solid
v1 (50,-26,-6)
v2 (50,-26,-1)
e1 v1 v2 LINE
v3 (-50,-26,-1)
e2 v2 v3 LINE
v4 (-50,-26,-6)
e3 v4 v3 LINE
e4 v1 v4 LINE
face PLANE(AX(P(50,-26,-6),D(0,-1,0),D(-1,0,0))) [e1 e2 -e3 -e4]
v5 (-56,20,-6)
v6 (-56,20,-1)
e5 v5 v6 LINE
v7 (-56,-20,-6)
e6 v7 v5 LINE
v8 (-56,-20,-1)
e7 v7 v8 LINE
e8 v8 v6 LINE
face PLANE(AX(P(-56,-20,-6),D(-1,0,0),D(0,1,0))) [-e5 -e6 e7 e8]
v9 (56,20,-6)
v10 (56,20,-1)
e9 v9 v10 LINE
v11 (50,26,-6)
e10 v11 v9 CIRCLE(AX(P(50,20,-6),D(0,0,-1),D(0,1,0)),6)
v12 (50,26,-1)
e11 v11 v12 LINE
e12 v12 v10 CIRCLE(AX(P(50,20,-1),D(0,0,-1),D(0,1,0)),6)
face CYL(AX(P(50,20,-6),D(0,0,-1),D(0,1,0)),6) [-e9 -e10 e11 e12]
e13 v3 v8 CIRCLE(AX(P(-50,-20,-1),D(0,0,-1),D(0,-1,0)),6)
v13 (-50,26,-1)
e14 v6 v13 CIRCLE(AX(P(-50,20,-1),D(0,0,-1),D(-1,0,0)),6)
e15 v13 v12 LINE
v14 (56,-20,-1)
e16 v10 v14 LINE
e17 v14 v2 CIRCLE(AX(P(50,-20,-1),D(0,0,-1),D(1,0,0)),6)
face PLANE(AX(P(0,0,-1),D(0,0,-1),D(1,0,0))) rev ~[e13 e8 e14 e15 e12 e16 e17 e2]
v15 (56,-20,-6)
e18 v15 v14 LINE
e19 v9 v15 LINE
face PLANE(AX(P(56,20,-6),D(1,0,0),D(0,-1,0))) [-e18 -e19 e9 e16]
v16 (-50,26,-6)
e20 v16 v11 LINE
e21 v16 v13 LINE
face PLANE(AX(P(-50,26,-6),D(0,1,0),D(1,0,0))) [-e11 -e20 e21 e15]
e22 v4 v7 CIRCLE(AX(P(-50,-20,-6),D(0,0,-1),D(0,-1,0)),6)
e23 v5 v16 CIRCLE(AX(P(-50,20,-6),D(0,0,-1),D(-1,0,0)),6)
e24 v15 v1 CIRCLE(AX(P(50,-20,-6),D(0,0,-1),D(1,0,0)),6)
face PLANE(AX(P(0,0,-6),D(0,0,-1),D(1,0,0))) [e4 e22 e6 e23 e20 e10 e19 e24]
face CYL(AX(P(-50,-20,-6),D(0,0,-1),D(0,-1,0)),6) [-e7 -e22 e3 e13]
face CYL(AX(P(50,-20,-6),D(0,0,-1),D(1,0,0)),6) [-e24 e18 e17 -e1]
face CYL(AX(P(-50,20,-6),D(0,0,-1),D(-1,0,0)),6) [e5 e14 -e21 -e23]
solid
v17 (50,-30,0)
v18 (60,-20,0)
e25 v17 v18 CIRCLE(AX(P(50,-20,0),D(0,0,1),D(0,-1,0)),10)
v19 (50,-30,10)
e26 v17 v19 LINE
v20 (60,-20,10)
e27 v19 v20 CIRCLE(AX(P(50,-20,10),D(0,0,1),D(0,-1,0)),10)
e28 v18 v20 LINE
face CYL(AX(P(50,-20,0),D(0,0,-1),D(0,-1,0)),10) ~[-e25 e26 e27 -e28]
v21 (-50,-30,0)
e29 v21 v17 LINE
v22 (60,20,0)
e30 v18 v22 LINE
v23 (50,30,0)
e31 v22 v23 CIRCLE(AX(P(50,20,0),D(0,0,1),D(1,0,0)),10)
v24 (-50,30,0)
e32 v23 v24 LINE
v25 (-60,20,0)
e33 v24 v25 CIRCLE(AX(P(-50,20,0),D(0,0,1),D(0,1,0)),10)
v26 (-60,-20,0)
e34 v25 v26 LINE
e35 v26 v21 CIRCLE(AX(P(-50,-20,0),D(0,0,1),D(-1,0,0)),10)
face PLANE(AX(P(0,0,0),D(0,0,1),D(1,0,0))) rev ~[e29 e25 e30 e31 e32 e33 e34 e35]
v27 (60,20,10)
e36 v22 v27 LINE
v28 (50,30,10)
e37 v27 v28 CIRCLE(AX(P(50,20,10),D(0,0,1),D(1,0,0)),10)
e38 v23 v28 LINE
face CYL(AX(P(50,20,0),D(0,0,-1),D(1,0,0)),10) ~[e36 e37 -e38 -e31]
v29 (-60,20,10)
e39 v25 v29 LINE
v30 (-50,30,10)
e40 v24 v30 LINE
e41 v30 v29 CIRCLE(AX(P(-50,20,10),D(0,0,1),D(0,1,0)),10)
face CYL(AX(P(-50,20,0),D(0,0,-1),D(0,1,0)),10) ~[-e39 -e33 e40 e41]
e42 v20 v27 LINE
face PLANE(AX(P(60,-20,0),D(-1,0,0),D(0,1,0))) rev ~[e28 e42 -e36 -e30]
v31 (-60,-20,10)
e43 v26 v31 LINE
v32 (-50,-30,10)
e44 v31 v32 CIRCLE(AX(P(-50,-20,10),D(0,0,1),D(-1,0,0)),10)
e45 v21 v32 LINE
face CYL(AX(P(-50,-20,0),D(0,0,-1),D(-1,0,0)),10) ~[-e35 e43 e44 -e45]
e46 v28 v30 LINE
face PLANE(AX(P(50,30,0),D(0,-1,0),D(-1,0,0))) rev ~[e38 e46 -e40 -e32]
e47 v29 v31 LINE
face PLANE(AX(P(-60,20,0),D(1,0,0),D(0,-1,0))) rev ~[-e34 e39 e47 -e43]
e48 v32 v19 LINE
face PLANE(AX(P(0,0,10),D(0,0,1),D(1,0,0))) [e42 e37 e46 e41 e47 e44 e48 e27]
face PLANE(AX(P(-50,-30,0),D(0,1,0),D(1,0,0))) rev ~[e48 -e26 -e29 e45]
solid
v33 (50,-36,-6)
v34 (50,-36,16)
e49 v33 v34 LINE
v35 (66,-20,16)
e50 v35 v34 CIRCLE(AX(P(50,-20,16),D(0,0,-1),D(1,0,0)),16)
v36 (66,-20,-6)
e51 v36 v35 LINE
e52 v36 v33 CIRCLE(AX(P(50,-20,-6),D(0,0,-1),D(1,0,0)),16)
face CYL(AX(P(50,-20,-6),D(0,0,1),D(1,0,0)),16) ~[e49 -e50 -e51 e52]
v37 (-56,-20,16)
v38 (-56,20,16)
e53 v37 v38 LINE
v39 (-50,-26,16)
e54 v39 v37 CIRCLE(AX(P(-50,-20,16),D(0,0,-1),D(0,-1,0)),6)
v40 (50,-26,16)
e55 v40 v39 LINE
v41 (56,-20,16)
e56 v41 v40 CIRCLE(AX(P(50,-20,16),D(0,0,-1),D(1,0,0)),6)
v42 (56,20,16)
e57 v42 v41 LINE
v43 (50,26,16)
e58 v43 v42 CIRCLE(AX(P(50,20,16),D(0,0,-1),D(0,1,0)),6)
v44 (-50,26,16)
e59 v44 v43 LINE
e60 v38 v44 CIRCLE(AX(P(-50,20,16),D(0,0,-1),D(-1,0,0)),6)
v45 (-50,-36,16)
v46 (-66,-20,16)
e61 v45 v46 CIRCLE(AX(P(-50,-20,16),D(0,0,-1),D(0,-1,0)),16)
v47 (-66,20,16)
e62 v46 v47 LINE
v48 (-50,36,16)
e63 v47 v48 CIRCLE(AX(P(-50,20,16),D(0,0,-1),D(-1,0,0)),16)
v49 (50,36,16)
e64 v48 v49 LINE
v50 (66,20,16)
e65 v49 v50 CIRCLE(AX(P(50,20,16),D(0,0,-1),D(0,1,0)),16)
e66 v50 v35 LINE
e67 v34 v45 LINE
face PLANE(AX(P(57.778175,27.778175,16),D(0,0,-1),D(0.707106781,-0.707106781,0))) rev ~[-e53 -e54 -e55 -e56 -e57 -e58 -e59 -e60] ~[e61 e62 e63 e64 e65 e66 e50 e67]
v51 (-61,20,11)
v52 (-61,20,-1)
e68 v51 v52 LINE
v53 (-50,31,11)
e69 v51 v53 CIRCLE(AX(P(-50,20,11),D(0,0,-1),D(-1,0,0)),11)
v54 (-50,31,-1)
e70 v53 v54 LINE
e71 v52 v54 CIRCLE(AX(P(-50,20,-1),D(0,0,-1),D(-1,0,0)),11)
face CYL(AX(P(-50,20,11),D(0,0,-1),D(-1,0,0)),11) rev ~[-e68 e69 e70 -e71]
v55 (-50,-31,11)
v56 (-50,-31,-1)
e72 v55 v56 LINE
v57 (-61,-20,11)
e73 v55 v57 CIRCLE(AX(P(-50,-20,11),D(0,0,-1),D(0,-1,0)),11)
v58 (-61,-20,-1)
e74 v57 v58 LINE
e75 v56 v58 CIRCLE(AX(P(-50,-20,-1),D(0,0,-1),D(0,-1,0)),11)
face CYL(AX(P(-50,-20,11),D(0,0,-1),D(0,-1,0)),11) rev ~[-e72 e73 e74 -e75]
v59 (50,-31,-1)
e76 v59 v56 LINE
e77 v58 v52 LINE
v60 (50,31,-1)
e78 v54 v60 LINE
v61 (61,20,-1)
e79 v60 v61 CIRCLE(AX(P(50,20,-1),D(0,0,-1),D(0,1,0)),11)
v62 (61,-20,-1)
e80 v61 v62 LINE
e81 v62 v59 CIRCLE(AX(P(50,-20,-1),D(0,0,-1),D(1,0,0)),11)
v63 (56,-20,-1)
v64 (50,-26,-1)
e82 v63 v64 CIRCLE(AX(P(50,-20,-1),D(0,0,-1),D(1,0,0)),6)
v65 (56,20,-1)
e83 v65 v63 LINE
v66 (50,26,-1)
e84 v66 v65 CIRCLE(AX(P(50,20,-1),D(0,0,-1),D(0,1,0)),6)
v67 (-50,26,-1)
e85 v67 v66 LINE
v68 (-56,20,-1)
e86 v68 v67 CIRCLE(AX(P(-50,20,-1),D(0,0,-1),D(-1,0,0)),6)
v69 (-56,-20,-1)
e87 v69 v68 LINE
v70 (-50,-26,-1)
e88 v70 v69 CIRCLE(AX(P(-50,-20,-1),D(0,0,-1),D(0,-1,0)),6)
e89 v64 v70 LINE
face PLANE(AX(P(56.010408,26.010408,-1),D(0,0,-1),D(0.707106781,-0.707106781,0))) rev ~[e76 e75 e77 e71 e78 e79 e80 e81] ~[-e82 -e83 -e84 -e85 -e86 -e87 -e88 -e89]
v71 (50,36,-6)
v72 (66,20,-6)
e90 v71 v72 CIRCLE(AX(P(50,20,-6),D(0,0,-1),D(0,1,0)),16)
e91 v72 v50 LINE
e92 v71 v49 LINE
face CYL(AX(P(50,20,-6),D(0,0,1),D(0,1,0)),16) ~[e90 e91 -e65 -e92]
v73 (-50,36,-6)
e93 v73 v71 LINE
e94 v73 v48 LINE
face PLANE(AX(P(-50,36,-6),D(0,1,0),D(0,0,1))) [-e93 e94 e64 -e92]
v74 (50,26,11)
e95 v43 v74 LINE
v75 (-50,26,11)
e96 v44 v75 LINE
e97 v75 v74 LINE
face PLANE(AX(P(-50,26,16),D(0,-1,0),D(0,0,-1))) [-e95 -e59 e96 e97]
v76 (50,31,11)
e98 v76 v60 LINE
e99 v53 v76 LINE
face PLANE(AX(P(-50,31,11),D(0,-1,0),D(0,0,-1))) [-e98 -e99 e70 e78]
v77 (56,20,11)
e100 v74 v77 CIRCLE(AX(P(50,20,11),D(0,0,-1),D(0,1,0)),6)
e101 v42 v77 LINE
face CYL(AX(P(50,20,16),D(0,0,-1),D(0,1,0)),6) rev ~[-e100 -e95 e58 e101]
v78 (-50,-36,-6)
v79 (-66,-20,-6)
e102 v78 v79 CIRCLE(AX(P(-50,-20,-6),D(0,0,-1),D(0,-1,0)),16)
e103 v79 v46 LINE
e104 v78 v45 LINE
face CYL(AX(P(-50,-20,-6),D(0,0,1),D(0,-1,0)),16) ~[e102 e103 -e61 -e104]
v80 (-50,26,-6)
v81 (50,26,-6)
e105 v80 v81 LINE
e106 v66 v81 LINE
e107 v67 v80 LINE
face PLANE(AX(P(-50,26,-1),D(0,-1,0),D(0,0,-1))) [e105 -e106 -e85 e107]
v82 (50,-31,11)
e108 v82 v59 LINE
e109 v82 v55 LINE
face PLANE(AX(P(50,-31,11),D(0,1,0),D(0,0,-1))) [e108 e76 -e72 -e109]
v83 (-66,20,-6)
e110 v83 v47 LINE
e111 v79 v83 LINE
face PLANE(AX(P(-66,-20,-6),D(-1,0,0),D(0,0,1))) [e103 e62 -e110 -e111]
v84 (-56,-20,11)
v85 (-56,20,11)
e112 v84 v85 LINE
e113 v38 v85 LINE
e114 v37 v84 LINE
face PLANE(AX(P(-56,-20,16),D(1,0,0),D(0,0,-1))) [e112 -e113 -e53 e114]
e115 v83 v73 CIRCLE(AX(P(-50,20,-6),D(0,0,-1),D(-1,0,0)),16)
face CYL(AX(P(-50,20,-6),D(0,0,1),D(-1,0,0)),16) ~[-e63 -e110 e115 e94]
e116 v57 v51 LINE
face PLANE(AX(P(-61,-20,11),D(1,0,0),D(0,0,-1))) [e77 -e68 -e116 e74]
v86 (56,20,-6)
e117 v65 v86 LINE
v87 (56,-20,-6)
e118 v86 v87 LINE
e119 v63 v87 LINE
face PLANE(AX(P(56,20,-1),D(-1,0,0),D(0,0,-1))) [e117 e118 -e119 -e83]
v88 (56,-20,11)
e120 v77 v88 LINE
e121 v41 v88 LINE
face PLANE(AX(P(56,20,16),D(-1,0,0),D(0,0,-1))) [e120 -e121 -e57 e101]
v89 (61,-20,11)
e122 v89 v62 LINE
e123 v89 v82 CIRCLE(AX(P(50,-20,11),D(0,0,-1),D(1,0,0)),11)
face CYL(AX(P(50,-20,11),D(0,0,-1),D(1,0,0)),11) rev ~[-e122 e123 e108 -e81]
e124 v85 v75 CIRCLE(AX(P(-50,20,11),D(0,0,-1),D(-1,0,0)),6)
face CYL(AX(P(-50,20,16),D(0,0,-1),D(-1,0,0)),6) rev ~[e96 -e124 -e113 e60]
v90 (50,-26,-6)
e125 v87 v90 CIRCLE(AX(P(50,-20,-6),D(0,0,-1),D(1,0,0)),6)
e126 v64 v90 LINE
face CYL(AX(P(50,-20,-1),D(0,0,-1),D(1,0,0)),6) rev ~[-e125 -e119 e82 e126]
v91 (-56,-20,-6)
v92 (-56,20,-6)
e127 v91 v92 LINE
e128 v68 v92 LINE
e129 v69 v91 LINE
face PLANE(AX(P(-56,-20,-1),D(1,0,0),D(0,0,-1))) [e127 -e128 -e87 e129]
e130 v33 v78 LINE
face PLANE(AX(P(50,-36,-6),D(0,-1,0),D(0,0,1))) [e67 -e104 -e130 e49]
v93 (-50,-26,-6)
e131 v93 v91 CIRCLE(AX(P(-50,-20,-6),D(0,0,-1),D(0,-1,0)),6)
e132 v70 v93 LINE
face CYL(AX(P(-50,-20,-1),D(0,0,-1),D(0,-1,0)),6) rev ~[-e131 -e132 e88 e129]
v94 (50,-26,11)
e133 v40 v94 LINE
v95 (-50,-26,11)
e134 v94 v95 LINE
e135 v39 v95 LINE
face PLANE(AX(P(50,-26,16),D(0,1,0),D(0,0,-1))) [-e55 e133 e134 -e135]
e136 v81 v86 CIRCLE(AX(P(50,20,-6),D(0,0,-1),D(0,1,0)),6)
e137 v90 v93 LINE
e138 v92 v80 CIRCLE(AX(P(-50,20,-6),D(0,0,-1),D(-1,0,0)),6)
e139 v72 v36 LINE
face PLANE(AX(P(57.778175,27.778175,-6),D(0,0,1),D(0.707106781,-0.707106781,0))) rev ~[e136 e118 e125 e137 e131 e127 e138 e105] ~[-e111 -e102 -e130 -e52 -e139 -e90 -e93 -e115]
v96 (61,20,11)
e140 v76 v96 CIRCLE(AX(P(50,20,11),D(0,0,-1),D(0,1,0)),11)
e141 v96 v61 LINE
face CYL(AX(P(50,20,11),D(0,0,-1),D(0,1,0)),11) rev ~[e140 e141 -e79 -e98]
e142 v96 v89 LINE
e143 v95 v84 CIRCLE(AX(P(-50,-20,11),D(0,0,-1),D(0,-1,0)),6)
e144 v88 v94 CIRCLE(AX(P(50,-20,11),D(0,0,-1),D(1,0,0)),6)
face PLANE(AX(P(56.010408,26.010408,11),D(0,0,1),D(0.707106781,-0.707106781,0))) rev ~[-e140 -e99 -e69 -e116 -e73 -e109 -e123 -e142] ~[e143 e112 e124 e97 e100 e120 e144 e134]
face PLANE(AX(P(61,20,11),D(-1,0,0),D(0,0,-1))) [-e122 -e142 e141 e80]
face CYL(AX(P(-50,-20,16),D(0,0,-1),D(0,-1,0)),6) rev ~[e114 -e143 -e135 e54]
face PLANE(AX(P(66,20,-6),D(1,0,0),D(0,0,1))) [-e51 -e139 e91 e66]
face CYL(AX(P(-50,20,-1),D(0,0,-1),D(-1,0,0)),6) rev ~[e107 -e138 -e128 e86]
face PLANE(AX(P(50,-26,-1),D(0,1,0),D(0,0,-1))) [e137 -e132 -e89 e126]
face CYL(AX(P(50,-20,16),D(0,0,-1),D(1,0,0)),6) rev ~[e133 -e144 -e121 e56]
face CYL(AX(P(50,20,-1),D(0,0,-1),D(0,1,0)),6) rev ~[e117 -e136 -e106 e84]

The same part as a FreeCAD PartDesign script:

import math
import FreeCAD as App
import Part
import Sketcher

doc = App.newDocument("Part")
params = doc.addObject("Spreadsheet::Sheet", "Params")
for row, (alias, value) in enumerate([
    ("sketch1_radius", "10 mm"),
    ("sketch1_width", "100 mm"),
    ("sketch1_height", "40 mm"),
    ("pad1_length", "10 mm"),
    ("sketch2_width", "5 mm"),
    ("sketch2_width2", "10 mm"),
    ("sketch2_height", "12 mm"),
    ("sketch3_radius", "11 mm"),
    ("sketch3_width", "100 mm"),
    ("sketch3_height", "40 mm"),
    ("sketch4_radius", "6 mm"),
    ("sketch4_width", "100 mm"),
    ("sketch4_height", "40 mm"),
    ("pad2_length", "5 mm"),
], start=1):
    params.set(f"A{row}", alias)
    params.set(f"B{row}", "=" + value)
    params.setAlias(f"B{row}", alias)

body = doc.addObject("PartDesign::Body", "Body")

# Sketch on XY plane
sketch1 = doc.addObject("Sketcher::SketchObject", "Sketch")
body.addObject(sketch1)
sketch1.AttachmentSupport = (doc.XY_Plane, [""])
sketch1.MapMode = "FlatFace"
sketch1.addGeometry(Part.LineSegment(App.Vector(50, 30, 0), App.Vector(-50, 30, 0)), False)
sketch1.addGeometry(Part.ArcOfCircle(Part.Circle(App.Vector(-50, 20, 0), App.Vector(0, 0, 1), 10), math.radians(90), math.radians(180)), False)
sketch1.addGeometry(Part.LineSegment(App.Vector(-60, 20, 0), App.Vector(-60, -20, 0)), False)
sketch1.addGeometry(Part.ArcOfCircle(Part.Circle(App.Vector(-50, -20, 0), App.Vector(0, 0, 1), 10), math.radians(180), math.radians(270)), False)
sketch1.addGeometry(Part.LineSegment(App.Vector(-50, -30, 0), App.Vector(50, -30, 0)), False)
sketch1.addGeometry(Part.ArcOfCircle(Part.Circle(App.Vector(50, -20, 0), App.Vector(0, 0, 1), 10), math.radians(-90), math.radians(0)), False)
sketch1.addGeometry(Part.LineSegment(App.Vector(60, -20, 0), App.Vector(60, 20, 0)), False)
sketch1.addGeometry(Part.ArcOfCircle(Part.Circle(App.Vector(50, 20, 0), App.Vector(0, 0, 1), 10), math.radians(0), math.radians(90)), False)
sketch1.addConstraint(Sketcher.Constraint("Tangent", 0, 2, 1, 1))
sketch1.addConstraint(Sketcher.Constraint("Tangent", 1, 2, 2, 1))
sketch1.addConstraint(Sketcher.Constraint("Tangent", 2, 2, 3, 1))
sketch1.addConstraint(Sketcher.Constraint("Tangent", 3, 2, 4, 1))
sketch1.addConstraint(Sketcher.Constraint("Tangent", 4, 2, 5, 1))
sketch1.addConstraint(Sketcher.Constraint("Tangent", 5, 2, 6, 1))
sketch1.addConstraint(Sketcher.Constraint("Tangent", 6, 2, 7, 1))
sketch1.addConstraint(Sketcher.Constraint("Tangent", 7, 2, 0, 1))
sketch1.addConstraint(Sketcher.Constraint("Horizontal", 0))
sketch1.addConstraint(Sketcher.Constraint("Vertical", 2))
sketch1.addConstraint(Sketcher.Constraint("Horizontal", 4))
sketch1.addConstraint(Sketcher.Constraint("Vertical", 6))
sketch1.addConstraint(Sketcher.Constraint("Equal", 1, 3))
sketch1.addConstraint(Sketcher.Constraint("Equal", 3, 5))
sketch1.addConstraint(Sketcher.Constraint("Equal", 5, 7))
sketch1.addConstraint(Sketcher.Constraint("Symmetric", 1, 3, 5, 3, -1, 1))
sketch1.addConstraint(Sketcher.Constraint("Radius", 1, 10.0))
sketch1.addConstraint(Sketcher.Constraint("DistanceX", 0, 2, 0, 1, 100.0))
sketch1.addConstraint(Sketcher.Constraint("DistanceY", 2, 2, 2, 1, 40.0))
sketch1.setExpression("Constraints[16]", "Params.sketch1_radius")
sketch1.setExpression("Constraints[17]", "Params.sketch1_width")
sketch1.setExpression("Constraints[18]", "Params.sketch1_height")
pad1 = doc.addObject("PartDesign::Pad", "Pad")
body.addObject(pad1)
pad1.Profile = sketch1
pad1.setExpression("Length", "Params.pad1_length")
body2 = doc.addObject("PartDesign::Body", "Body001")

# Sketch on YZ plane
sketch2 = doc.addObject("Sketcher::SketchObject", "Sketch001")
body2.addObject(sketch2)
sketch2.AttachmentSupport = (doc.getObject("YZ_Plane001"), [""])
sketch2.MapMode = "FlatFace"
sketch2.addGeometry(Part.LineSegment(App.Vector(31, 11, 0), App.Vector(31, -1, 0)), False)
sketch2.addGeometry(Part.LineSegment(App.Vector(31, -1, 0), App.Vector(26, -1, 0)), False)
sketch2.addGeometry(Part.LineSegment(App.Vector(26, -1, 0), App.Vector(26, -6, 0)), False)
sketch2.addGeometry(Part.LineSegment(App.Vector(26, -6, 0), App.Vector(36, -6, 0)), False)
sketch2.addGeometry(Part.LineSegment(App.Vector(36, -6, 0), App.Vector(36, 16, 0)), False)
sketch2.addGeometry(Part.LineSegment(App.Vector(36, 16, 0), App.Vector(26, 16, 0)), False)
sketch2.addGeometry(Part.LineSegment(App.Vector(26, 16, 0), App.Vector(26, 11, 0)), False)
sketch2.addGeometry(Part.LineSegment(App.Vector(26, 11, 0), App.Vector(31, 11, 0)), False)
sketch2.addConstraint(Sketcher.Constraint("Coincident", 0, 2, 1, 1))
sketch2.addConstraint(Sketcher.Constraint("Coincident", 1, 2, 2, 1))
sketch2.addConstraint(Sketcher.Constraint("Coincident", 2, 2, 3, 1))
sketch2.addConstraint(Sketcher.Constraint("Coincident", 3, 2, 4, 1))
sketch2.addConstraint(Sketcher.Constraint("Coincident", 4, 2, 5, 1))
sketch2.addConstraint(Sketcher.Constraint("Coincident", 5, 2, 6, 1))
sketch2.addConstraint(Sketcher.Constraint("Coincident", 6, 2, 7, 1))
sketch2.addConstraint(Sketcher.Constraint("Coincident", 7, 2, 0, 1))
sketch2.addConstraint(Sketcher.Constraint("Vertical", 0))
sketch2.addConstraint(Sketcher.Constraint("Horizontal", 1))
sketch2.addConstraint(Sketcher.Constraint("Vertical", 2))
sketch2.addConstraint(Sketcher.Constraint("Horizontal", 3))
sketch2.addConstraint(Sketcher.Constraint("Vertical", 4))
sketch2.addConstraint(Sketcher.Constraint("Horizontal", 5))
sketch2.addConstraint(Sketcher.Constraint("Vertical", 6))
sketch2.addConstraint(Sketcher.Constraint("Horizontal", 7))
sketch2.addConstraint(Sketcher.Constraint("Vertical", 2, 2, 5, 2))
sketch2.addConstraint(Sketcher.Constraint("Equal", 7, 2))
sketch2.addConstraint(Sketcher.Constraint("Equal", 2, 6))
sketch2.addConstraint(Sketcher.Constraint("DistanceX", 1, 2, 1, 1, 5.0))
sketch2.addConstraint(Sketcher.Constraint("DistanceX", 3, 1, 3, 2, 10.0))
sketch2.addConstraint(Sketcher.Constraint("DistanceY", 0, 2, 0, 1, 12.0))
sketch2.addConstraint(Sketcher.Constraint("DistanceX", -1, 1, 0, 2, 31.0))
sketch2.addConstraint(Sketcher.Constraint("DistanceY", 0, 2, -1, 1, 1.0))
sketch2.setExpression("Constraints[19]", "Params.sketch2_width")
sketch2.setExpression("Constraints[20]", "Params.sketch2_width2")
sketch2.setExpression("Constraints[21]", "Params.sketch2_height")

# Sketch on XY plane
sketch3 = doc.addObject("Sketcher::SketchObject", "Sketch002")
body2.addObject(sketch3)
sketch3.AttachmentSupport = (doc.getObject("XY_Plane001"), [""])
sketch3.MapMode = "FlatFace"
sketch3.addGeometry(Part.ArcOfCircle(Part.Circle(App.Vector(50, 20, 0), App.Vector(0, 0, 1), 11), math.radians(0), math.radians(90)), False)
sketch3.addGeometry(Part.LineSegment(App.Vector(61, 20, 0), App.Vector(61, -20, 0)), False)
sketch3.addGeometry(Part.ArcOfCircle(Part.Circle(App.Vector(50, -20, 0), App.Vector(0, 0, 1), 11), math.radians(-90), math.radians(0)), False)
sketch3.addGeometry(Part.LineSegment(App.Vector(50, -31, 0), App.Vector(-50, -31, 0)), False)
sketch3.addGeometry(Part.ArcOfCircle(Part.Circle(App.Vector(-50, -20, 0), App.Vector(0, 0, 1), 11), math.radians(180), math.radians(270)), False)
sketch3.addGeometry(Part.LineSegment(App.Vector(-61, -20, 0), App.Vector(-61, 20, 0)), False)
sketch3.addGeometry(Part.ArcOfCircle(Part.Circle(App.Vector(-50, 20, 0), App.Vector(0, 0, 1), 11), math.radians(90), math.radians(180)), False)
sketch3.addGeometry(Part.LineSegment(App.Vector(-50, 31, 0), App.Vector(50, 31, 0)), False)
sketch3.addConstraint(Sketcher.Constraint("Tangent", 0, 1, 1, 1))
sketch3.addConstraint(Sketcher.Constraint("Tangent", 1, 2, 2, 2))
sketch3.addConstraint(Sketcher.Constraint("Tangent", 2, 1, 3, 1))
sketch3.addConstraint(Sketcher.Constraint("Tangent", 3, 2, 4, 2))
sketch3.addConstraint(Sketcher.Constraint("Tangent", 4, 1, 5, 1))
sketch3.addConstraint(Sketcher.Constraint("Tangent", 5, 2, 6, 2))
sketch3.addConstraint(Sketcher.Constraint("Tangent", 6, 1, 7, 1))
sketch3.addConstraint(Sketcher.Constraint("Tangent", 7, 2, 0, 2))
sketch3.addConstraint(Sketcher.Constraint("Vertical", 1))
sketch3.addConstraint(Sketcher.Constraint("Horizontal", 3))
sketch3.addConstraint(Sketcher.Constraint("Vertical", 5))
sketch3.addConstraint(Sketcher.Constraint("Horizontal", 7))
sketch3.addConstraint(Sketcher.Constraint("Equal", 0, 2))
sketch3.addConstraint(Sketcher.Constraint("Equal", 2, 4))
sketch3.addConstraint(Sketcher.Constraint("Equal", 4, 6))
sketch3.addConstraint(Sketcher.Constraint("Symmetric", 0, 3, 4, 3, -1, 1))
sketch3.addConstraint(Sketcher.Constraint("Radius", 0, 11.0))
sketch3.addConstraint(Sketcher.Constraint("DistanceX", 3, 2, 3, 1, 100.0))
sketch3.addConstraint(Sketcher.Constraint("DistanceY", 1, 2, 1, 1, 40.0))
sketch3.setExpression("Constraints[16]", "Params.sketch3_radius")
sketch3.setExpression("Constraints[17]", "Params.sketch3_width")
sketch3.setExpression("Constraints[18]", "Params.sketch3_height")
doc.recompute()

additivepipe = doc.addObject("PartDesign::AdditivePipe", "AdditivePipe")
body2.addObject(additivepipe)
additivepipe.Profile = sketch2
additivepipe.Spine = (sketch3, ["Edge1", "Edge2", "Edge3", "Edge4", "Edge5", "Edge6", "Edge7", "Edge8"])
body3 = doc.addObject("PartDesign::Body", "Body002")

# Sketch on XY plane
sketch4 = doc.addObject("Sketcher::SketchObject", "Sketch003")
body3.addObject(sketch4)
sketch4.AttachmentSupport = (doc.getObject("XY_Plane002"), [""])
sketch4.MapMode = "FlatFace"
sketch4.AttachmentOffset = App.Placement(App.Vector(0, 0, -6), App.Rotation())
sketch4.addGeometry(Part.LineSegment(App.Vector(-56, -20, 0), App.Vector(-56, 20, 0)), False)
sketch4.addGeometry(Part.ArcOfCircle(Part.Circle(App.Vector(-50, 20, 0), App.Vector(0, 0, 1), 6), math.radians(90), math.radians(180)), False)
sketch4.addGeometry(Part.LineSegment(App.Vector(-50, 26, 0), App.Vector(50, 26, 0)), False)
sketch4.addGeometry(Part.ArcOfCircle(Part.Circle(App.Vector(50, 20, 0), App.Vector(0, 0, 1), 6), math.radians(0), math.radians(90)), False)
sketch4.addGeometry(Part.LineSegment(App.Vector(56, 20, 0), App.Vector(56, -20, 0)), False)
sketch4.addGeometry(Part.ArcOfCircle(Part.Circle(App.Vector(50, -20, 0), App.Vector(0, 0, 1), 6), math.radians(-90), math.radians(0)), False)
sketch4.addGeometry(Part.LineSegment(App.Vector(50, -26, 0), App.Vector(-50, -26, 0)), False)
sketch4.addGeometry(Part.ArcOfCircle(Part.Circle(App.Vector(-50, -20, 0), App.Vector(0, 0, 1), 6), math.radians(180), math.radians(270)), False)
sketch4.addConstraint(Sketcher.Constraint("Tangent", 0, 2, 1, 2))
sketch4.addConstraint(Sketcher.Constraint("Tangent", 1, 1, 2, 1))
sketch4.addConstraint(Sketcher.Constraint("Tangent", 2, 2, 3, 2))
sketch4.addConstraint(Sketcher.Constraint("Tangent", 3, 1, 4, 1))
sketch4.addConstraint(Sketcher.Constraint("Tangent", 4, 2, 5, 2))
sketch4.addConstraint(Sketcher.Constraint("Tangent", 5, 1, 6, 1))
sketch4.addConstraint(Sketcher.Constraint("Tangent", 6, 2, 7, 2))
sketch4.addConstraint(Sketcher.Constraint("Tangent", 7, 1, 0, 1))
sketch4.addConstraint(Sketcher.Constraint("Vertical", 0))
sketch4.addConstraint(Sketcher.Constraint("Horizontal", 2))
sketch4.addConstraint(Sketcher.Constraint("Vertical", 4))
sketch4.addConstraint(Sketcher.Constraint("Horizontal", 6))
sketch4.addConstraint(Sketcher.Constraint("Equal", 1, 3))
sketch4.addConstraint(Sketcher.Constraint("Equal", 3, 5))
sketch4.addConstraint(Sketcher.Constraint("Equal", 5, 7))
sketch4.addConstraint(Sketcher.Constraint("Symmetric", 1, 3, 5, 3, -1, 1))
sketch4.addConstraint(Sketcher.Constraint("Radius", 1, 6.0))
sketch4.addConstraint(Sketcher.Constraint("DistanceX", 2, 1, 2, 2, 100.0))
sketch4.addConstraint(Sketcher.Constraint("DistanceY", 0, 1, 0, 2, 40.0))
sketch4.setExpression("Constraints[16]", "Params.sketch4_radius")
sketch4.setExpression("Constraints[17]", "Params.sketch4_width")
sketch4.setExpression("Constraints[18]", "Params.sketch4_height")
pad2 = doc.addObject("PartDesign::Pad", "Pad001")
body3.addObject(pad2)
pad2.Profile = sketch4
pad2.setExpression("Length", "Params.pad2_length")

doc.recompute()
